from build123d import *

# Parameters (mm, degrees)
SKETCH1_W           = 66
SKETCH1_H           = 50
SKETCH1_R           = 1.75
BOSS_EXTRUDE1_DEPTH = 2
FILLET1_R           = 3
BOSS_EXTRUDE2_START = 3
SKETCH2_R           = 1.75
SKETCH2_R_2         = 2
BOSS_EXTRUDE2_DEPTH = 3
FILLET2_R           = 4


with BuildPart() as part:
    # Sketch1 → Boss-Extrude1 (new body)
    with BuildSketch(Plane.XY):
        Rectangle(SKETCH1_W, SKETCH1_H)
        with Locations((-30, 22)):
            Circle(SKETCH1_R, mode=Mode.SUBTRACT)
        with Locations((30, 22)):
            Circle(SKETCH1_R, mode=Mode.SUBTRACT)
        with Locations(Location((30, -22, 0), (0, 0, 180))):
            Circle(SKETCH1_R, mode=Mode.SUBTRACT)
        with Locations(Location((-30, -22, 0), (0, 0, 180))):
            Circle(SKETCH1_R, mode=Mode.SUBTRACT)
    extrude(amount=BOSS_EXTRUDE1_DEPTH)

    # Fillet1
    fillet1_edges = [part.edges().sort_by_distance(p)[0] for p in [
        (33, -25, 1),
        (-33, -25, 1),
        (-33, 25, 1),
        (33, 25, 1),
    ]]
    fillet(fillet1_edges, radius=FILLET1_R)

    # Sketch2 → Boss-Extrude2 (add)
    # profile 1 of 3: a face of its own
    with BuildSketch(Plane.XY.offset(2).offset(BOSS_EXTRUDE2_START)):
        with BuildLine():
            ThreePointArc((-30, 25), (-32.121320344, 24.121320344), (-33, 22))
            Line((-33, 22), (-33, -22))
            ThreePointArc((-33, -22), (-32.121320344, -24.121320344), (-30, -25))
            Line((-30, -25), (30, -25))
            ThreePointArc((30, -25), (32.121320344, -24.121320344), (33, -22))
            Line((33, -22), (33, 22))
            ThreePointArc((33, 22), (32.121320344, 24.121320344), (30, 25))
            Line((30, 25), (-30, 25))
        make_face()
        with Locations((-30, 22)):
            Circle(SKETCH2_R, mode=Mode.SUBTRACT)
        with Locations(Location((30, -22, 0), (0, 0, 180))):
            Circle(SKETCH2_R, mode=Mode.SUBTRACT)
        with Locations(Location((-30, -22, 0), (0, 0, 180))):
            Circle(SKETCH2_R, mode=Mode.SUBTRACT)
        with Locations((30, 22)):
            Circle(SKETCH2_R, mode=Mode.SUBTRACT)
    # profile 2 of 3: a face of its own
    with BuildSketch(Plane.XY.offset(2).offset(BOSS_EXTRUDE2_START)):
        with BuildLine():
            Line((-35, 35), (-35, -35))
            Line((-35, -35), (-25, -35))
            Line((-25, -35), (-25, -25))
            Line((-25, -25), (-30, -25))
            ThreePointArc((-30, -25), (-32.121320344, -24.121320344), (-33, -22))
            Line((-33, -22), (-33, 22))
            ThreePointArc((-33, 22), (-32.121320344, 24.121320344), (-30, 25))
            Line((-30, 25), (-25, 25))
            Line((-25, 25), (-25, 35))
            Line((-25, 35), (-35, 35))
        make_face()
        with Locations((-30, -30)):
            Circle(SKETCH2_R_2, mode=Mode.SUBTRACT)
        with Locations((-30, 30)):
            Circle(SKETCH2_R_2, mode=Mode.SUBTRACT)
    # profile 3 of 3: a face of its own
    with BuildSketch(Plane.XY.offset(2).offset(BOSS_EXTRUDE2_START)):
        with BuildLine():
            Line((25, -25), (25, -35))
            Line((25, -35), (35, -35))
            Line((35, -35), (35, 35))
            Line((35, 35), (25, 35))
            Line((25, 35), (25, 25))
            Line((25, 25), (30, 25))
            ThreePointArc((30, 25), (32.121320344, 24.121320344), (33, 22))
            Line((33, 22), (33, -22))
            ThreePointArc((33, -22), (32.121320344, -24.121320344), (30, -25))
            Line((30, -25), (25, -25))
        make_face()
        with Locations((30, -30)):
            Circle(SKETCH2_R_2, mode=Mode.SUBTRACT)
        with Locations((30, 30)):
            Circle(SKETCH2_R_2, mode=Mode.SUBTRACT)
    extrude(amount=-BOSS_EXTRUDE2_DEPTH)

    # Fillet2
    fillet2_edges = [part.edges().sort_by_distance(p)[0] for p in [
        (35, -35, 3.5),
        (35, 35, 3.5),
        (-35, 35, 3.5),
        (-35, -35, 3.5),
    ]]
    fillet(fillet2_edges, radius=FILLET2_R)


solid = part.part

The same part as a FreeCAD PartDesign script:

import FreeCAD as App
import Part
import Sketcher

V = App.Vector
Q = App.Units.Quantity


def edges_at(feature, points):
    """Names of the edges that pass closest to the given points."""
    edges = feature.Shape.Edges
    near = lambda p: min(range(len(edges)), key=lambda i: edges[i].distToShape(Part.Vertex(*p))[0])
    return sorted({f"Edge{near(p) + 1}" for p in points})


def add_polygon(sketch, points):
    """Adds a closed chain of lines whose ends are joined by coincident constraints."""
    first, n = sketch.GeometryCount, len(points)
    for a, b in zip(points, points[1:] + points[:1]):
        sketch.addGeometry(Part.LineSegment(App.Vector(*a, 0), App.Vector(*b, 0)), False)
    for i in range(n):
        sketch.addConstraint(Sketcher.Constraint("Coincident", first + i, 2, first + (i + 1) % n, 1))

doc = App.newDocument("Part")
body = doc.addObject("PartDesign::Body", "Body")

# Sketch on XY plane
sketch1 = doc.addObject("Sketcher::SketchObject", "Sketch")
body.addObject(sketch1)
sketch1.AttachmentSupport = (doc.XY_Plane, [""])
sketch1.MapMode = "FlatFace"
add_polygon(sketch1, [(-33, 25), (-33, -25), (33, -25), (33, 25)])  # lines 0-3
sketch1.addGeometry(Part.Circle(V(-30, -22, 0), V(0, 0, 1), 1.75), False)  # 4
sketch1.addGeometry(Part.Circle(V(30, -22, 0), V(0, 0, 1), 1.75), False)  # 5
sketch1.addGeometry(Part.Circle(V(-30, 22, 0), V(0, 0, 1), 1.75), False)  # 6
sketch1.addGeometry(Part.Circle(V(30, 22, 0), V(0, 0, 1), 1.75), False)  # 7
sketch1.addConstraint([
    Sketcher.Constraint("Vertical", 0),
    Sketcher.Constraint("Horizontal", 1),
    Sketcher.Constraint("Vertical", 2),
    Sketcher.Constraint("Horizontal", 3),
    Sketcher.Constraint("Equal", 4, 5),
    Sketcher.Constraint("Equal", 5, 6),
    Sketcher.Constraint("Equal", 6, 7),
    Sketcher.Constraint("Symmetric", 5, 3, 6, 3, -1, 1),
    Sketcher.Constraint("Symmetric", 4, 3, 7, 3, -1, 1),
    Sketcher.Constraint("Symmetric", 0, 2, 2, 2, -1, 1),
    Sketcher.Constraint("Symmetric", 4, 3, 5, 3, -2),
    Sketcher.Constraint("Diameter", 4, Q("3.5 mm")),
    Sketcher.Constraint("DistanceX", 1, 1, 1, 2, Q("66 mm")),
    Sketcher.Constraint("DistanceY", 0, 2, 0, 1, Q("50 mm")),
    Sketcher.Constraint("DistanceX", 4, 3, -1, 1, Q("30 mm")),
    Sketcher.Constraint("DistanceY", 4, 3, -1, 1, Q("22 mm")),
])
pad1 = doc.addObject("PartDesign::Pad", "Pad")
body.addObject(pad1)
pad1.Profile = sketch1
pad1.Length = 2
doc.recompute()

fillet = doc.addObject("PartDesign::Fillet", "Fillet")
body.addObject(fillet)
fillet.Base = (pad1, edges_at(pad1, [
    (33, -25, 1),
    (-33, -25, 1),
    (-33, 25, 1),
    (33, 25, 1),
]))
fillet.Radius = 3

# Sketch on XY plane
sketch2 = doc.addObject("Sketcher::SketchObject", "Sketch001")
body.addObject(sketch2)
sketch2.AttachmentSupport = (doc.XY_Plane, [""])
sketch2.MapMode = "FlatFace"
sketch2.AttachmentOffset = App.Placement(V(0, 0, 5), App.Rotation())
add_polygon(sketch2, [(25, 25), (-25, 25), (-25, 35), (-35, 35), (-35, -35), (-25, -35), (-25, -25), (25, -25), (25, -35), (35, -35), (35, 35), (25, 35)])  # lines 0-11
sketch2.addGeometry(Part.Circle(V(-30, -22, 0), V(0, 0, 1), 1.75), False)  # 12
sketch2.addGeometry(Part.Circle(V(30, -22, 0), V(0, 0, 1), 1.75), False)  # 13
sketch2.addGeometry(Part.Circle(V(-30, 22, 0), V(0, 0, 1), 1.75), False)  # 14
sketch2.addGeometry(Part.Circle(V(30, 22, 0), V(0, 0, 1), 1.75), False)  # 15
sketch2.addGeometry(Part.Circle(V(-30, -30, 0), V(0, 0, 1), 2), False)  # 16
sketch2.addGeometry(Part.Circle(V(-30, 30, 0), V(0, 0, 1), 2), False)  # 17
sketch2.addGeometry(Part.Circle(V(30, -30, 0), V(0, 0, 1), 2), False)  # 18
sketch2.addGeometry(Part.Circle(V(30, 30, 0), V(0, 0, 1), 2), False)  # 19
sketch2.addConstraint([
    Sketcher.Constraint("Horizontal", 0),
    Sketcher.Constraint("Vertical", 1),
    Sketcher.Constraint("Horizontal", 2),
    Sketcher.Constraint("Vertical", 3),
    Sketcher.Constraint("Horizontal", 4),
    Sketcher.Constraint("Vertical", 5),
    Sketcher.Constraint("Horizontal", 6),
    Sketcher.Constraint("Vertical", 7),
    Sketcher.Constraint("Horizontal", 8),
    Sketcher.Constraint("Vertical", 9),
    Sketcher.Constraint("Horizontal", 10),
    Sketcher.Constraint("Vertical", 11),
    Sketcher.Constraint("Equal", 12, 13),
    Sketcher.Constraint("Equal", 13, 14),
    Sketcher.Constraint("Equal", 14, 15),
    Sketcher.Constraint("Equal", 16, 17),
    Sketcher.Constraint("Equal", 17, 18),
    Sketcher.Constraint("Equal", 18, 19),
    Sketcher.Constraint("Symmetric", 13, 3, 14, 3, -1, 1),
    Sketcher.Constraint("Symmetric", 12, 3, 15, 3, -1, 1),
    Sketcher.Constraint("Symmetric", 17, 3, 18, 3, -1, 1),
    Sketcher.Constraint("Symmetric", 16, 3, 19, 3, -1, 1),
    Sketcher.Constraint("Symmetric", 0, 2, 6, 2, -1, 1),
    Sketcher.Constraint("Symmetric", 2, 2, 8, 2, -1, 1),
    Sketcher.Constraint("Symmetric", 4, 2, 10, 2, -1, 1),
    Sketcher.Constraint("Symmetric", 12, 3, 13, 3, -2),
    Sketcher.Constraint("Symmetric", 16, 3, 18, 3, -2),
    Sketcher.Constraint("Symmetric", 4, 2, 7, 2, -2),
    Sketcher.Constraint("Vertical", 14, 3, 16, 3),
    Sketcher.Constraint("Equal", 10, 1),
    Sketcher.Constraint("Diameter", 16, Q("4 mm")),
    Sketcher.Constraint("Diameter", 12, Q("3.5 mm")),
    Sketcher.Constraint("DistanceX", 0, 2, 0, 1, Q("50 mm")),
    Sketcher.Constraint("DistanceX", 2, 2, 2, 1, Q("10 mm")),
    Sketcher.Constraint("DistanceY", 3, 2, 3, 1, Q("70 mm")),
    Sketcher.Constraint("DistanceX", 12, 3, -1, 1, Q("30 mm")),
    Sketcher.Constraint("DistanceY", 12, 3, -1, 1, Q("22 mm")),
    Sketcher.Constraint("DistanceY", 16, 3, -1, 1, Q("30 mm")),
])
pad2 = doc.addObject("PartDesign::Pad", "Pad001")
body.addObject(pad2)
pad2.Profile = sketch2
pad2.Length = 3
pad2.Reversed = True
doc.recompute()

fillet2 = doc.addObject("PartDesign::Fillet", "Fillet001")
body.addObject(fillet2)
fillet2.Base = (pad2, edges_at(pad2, [
    (35, -35, 3.5),
    (35, 35, 3.5),
    (-35, 35, 3.5),
    (-35, -35, 3.5),
]))
fillet2.Radius = 4

doc.recompute()
